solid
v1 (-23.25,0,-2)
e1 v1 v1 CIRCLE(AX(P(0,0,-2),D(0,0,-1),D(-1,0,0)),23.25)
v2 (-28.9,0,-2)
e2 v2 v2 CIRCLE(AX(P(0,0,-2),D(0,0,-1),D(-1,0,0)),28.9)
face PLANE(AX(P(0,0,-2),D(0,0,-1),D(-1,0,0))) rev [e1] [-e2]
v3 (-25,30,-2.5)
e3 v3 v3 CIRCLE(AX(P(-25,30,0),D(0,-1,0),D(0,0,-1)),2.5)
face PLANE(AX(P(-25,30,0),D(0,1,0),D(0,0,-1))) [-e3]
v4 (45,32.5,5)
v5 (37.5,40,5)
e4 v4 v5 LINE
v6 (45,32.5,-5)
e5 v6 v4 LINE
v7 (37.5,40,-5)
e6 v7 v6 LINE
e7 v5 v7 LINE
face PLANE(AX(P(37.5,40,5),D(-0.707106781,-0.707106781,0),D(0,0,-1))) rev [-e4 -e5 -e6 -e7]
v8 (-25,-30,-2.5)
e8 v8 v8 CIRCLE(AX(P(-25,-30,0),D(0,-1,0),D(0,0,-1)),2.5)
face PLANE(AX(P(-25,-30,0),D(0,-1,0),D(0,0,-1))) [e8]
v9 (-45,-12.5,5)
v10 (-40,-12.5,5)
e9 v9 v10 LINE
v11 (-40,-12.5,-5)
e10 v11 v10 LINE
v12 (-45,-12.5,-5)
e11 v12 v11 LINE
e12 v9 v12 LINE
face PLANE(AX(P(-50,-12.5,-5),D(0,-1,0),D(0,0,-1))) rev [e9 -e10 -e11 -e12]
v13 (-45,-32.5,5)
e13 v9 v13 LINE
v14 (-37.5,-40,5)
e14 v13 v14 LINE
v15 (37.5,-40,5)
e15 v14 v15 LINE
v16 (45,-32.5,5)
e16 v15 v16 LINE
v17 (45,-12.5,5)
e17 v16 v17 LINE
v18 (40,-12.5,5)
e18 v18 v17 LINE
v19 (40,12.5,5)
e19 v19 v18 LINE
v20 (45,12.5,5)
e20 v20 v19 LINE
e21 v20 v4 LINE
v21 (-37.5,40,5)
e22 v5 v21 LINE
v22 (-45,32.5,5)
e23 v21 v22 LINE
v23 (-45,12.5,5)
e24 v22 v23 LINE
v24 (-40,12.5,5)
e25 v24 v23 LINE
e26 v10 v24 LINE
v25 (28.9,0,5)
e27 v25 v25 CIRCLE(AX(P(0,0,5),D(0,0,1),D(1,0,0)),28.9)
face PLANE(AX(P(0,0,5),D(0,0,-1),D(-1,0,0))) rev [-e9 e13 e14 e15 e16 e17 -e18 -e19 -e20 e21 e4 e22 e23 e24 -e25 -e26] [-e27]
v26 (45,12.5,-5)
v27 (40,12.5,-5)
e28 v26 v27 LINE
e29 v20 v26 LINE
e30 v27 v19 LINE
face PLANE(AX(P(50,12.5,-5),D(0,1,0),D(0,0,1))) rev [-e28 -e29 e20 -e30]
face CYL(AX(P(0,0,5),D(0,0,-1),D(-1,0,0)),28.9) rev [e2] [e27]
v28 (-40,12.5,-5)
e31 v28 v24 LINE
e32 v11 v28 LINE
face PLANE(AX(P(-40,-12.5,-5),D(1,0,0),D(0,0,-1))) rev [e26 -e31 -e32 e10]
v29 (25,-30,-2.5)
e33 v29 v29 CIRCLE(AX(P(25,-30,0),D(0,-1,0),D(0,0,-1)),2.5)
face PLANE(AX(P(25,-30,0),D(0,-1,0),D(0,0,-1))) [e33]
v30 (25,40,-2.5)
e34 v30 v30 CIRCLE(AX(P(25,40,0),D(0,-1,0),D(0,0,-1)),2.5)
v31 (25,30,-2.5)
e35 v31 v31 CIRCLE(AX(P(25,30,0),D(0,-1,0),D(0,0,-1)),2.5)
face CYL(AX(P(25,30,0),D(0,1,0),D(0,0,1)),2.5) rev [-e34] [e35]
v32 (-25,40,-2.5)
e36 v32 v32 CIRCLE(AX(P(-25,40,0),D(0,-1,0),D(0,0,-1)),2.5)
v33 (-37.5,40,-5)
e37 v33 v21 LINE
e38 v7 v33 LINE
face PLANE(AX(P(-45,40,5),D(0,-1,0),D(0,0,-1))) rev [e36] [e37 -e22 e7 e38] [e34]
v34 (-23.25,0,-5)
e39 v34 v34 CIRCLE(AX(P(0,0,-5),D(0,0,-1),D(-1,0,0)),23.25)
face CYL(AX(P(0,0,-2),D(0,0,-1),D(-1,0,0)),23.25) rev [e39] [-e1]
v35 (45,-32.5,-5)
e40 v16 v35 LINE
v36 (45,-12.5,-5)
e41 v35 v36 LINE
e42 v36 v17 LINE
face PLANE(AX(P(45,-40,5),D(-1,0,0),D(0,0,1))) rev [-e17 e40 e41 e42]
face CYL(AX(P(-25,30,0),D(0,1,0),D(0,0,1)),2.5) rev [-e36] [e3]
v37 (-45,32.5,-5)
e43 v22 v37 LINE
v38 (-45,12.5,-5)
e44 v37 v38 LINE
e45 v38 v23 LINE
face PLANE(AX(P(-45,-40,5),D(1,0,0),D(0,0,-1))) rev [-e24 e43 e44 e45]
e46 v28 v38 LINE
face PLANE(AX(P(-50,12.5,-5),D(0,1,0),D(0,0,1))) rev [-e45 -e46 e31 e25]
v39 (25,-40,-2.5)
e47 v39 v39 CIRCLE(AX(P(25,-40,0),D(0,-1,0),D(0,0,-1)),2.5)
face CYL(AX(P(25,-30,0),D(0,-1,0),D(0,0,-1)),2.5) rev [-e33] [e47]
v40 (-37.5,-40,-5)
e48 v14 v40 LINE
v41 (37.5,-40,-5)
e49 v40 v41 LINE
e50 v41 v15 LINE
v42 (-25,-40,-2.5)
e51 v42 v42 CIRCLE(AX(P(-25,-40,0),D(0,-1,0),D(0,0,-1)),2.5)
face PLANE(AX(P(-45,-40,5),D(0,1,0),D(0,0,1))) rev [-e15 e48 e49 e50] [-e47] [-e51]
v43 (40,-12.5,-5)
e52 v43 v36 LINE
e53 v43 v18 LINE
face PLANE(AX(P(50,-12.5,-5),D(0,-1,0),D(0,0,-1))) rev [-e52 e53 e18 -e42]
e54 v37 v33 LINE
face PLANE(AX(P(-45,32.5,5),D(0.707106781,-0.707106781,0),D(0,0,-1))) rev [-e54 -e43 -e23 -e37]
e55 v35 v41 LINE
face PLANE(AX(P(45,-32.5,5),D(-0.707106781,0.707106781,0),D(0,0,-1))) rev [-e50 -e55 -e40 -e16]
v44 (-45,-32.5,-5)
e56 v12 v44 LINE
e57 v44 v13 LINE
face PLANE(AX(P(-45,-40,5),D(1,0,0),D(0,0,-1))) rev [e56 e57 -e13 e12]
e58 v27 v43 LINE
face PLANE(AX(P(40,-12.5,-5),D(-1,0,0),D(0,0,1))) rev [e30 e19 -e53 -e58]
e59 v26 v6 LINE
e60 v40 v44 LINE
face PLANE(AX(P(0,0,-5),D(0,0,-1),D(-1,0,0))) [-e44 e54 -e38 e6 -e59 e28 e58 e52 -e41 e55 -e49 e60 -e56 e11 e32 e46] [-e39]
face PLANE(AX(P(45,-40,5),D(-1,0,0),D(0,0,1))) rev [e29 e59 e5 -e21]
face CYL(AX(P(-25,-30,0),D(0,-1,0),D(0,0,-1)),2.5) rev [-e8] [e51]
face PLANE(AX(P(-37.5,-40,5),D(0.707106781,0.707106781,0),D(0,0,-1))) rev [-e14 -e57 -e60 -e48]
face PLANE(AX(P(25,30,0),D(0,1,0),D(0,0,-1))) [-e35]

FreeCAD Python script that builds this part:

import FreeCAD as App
import Part
import Sketcher
from FreeCAD import Vector


def edges_at(feature, points):
    """Names of the edges that pass closest to the given points."""
    edges = feature.Shape.Edges
    near = lambda p: min(range(len(edges)), key=lambda i: edges[i].distToShape(Part.Vertex(*p))[0])
    return sorted({f"Edge{near(p) + 1}" for p in points})

doc = App.newDocument("Part")
body = doc.addObject("PartDesign::Body", "Body")

# Sketch on XY plane
sketch1 = body.newObject("Sketcher::SketchObject", "Sketch")
sketch1.AttachmentSupport = (doc.getObject("XY_Plane"), [""])
sketch1.MapMode = "FlatFace"
sketch1.addGeometry(Part.LineSegment(Vector(-45, 40, 0), Vector(-45, -40, 0)), False)
sketch1.addGeometry(Part.LineSegment(Vector(-45, -40, 0), Vector(45, -40, 0)), False)
sketch1.addGeometry(Part.LineSegment(Vector(45, -40, 0), Vector(45, 40, 0)), False)
sketch1.addGeometry(Part.LineSegment(Vector(45, 40, 0), Vector(-45, 40, 0)), False)
sketch1.addGeometry(Part.Circle(Vector(0, 0, 0), Vector(0, 0, 1), 29), False)
sketch1.addConstraint(Sketcher.Constraint("Coincident", 0, 2, 1, 1))
sketch1.addConstraint(Sketcher.Constraint("Coincident", 1, 2, 2, 1))
sketch1.addConstraint(Sketcher.Constraint("Coincident", 2, 2, 3, 1))
sketch1.addConstraint(Sketcher.Constraint("Coincident", 3, 2, 0, 1))
sketch1.addConstraint(Sketcher.Constraint("Vertical", 0))
sketch1.addConstraint(Sketcher.Constraint("Horizontal", 1))
sketch1.addConstraint(Sketcher.Constraint("Vertical", 2))
sketch1.addConstraint(Sketcher.Constraint("Horizontal", 3))
sketch1.addConstraint(Sketcher.Constraint("Coincident", 4, 3, -1, 1))
sketch1.addConstraint(Sketcher.Constraint("Symmetric", 0, 2, 2, 2, -1, 1))
sketch1.addConstraint(Sketcher.Constraint("Diameter", 4, 57.8))
sketch1.addConstraint(Sketcher.Constraint("DistanceX", 1, 1, 1, 2, 90.0))
sketch1.addConstraint(Sketcher.Constraint("DistanceY", 0, 2, 0, 1, 80.0))
pad1 = body.newObject("PartDesign::Pad", "Pad")
pad1.Profile = sketch1
pad1.Length = 10
pad1.Midplane = True

# Sketch on XY plane
sketch2 = body.newObject("Sketcher::SketchObject", "Sketch001")
sketch2.AttachmentSupport = (doc.getObject("XY_Plane"), [""])
sketch2.MapMode = "FlatFace"
sketch2.AttachmentOffset = App.Placement(Vector(0, 0, -5), App.Rotation())
sketch2.addGeometry(Part.Circle(Vector(0, 0, 0), Vector(0, 0, 1), 29), False)
sketch2.addGeometry(Part.Circle(Vector(0, 0, 0), Vector(0, 0, 1), 23), False)
sketch2.addConstraint(Sketcher.Constraint("Coincident", 0, 3, -1, 1))
sketch2.addConstraint(Sketcher.Constraint("Coincident", 1, 3, -1, 1))
sketch2.addConstraint(Sketcher.Constraint("Diameter", 0, 57.8))
sketch2.addConstraint(Sketcher.Constraint("Diameter", 1, 46.5))
pad2 = body.newObject("PartDesign::Pad", "Pad001")
pad2.Profile = sketch2
pad2.Length = 3

# Sketch on XY plane
sketch3 = body.newObject("Sketcher::SketchObject", "Sketch002")
sketch3.AttachmentSupport = (doc.getObject("XY_Plane"), [""])
sketch3.MapMode = "FlatFace"
sketch3.AttachmentOffset = App.Placement(Vector(0, 0, 5), App.Rotation())
sketch3.addGeometry(Part.LineSegment(Vector(-50, 12, 0), Vector(-50, -12, 0)), False)
sketch3.addGeometry(Part.LineSegment(Vector(-50, -12, 0), Vector(-40, -12, 0)), False)
sketch3.addGeometry(Part.LineSegment(Vector(-40, -12, 0), Vector(-40, 12, 0)), False)
sketch3.addGeometry(Part.LineSegment(Vector(-40, 12, 0), Vector(-50, 12, 0)), False)
sketch3.addGeometry(Part.LineSegment(Vector(40, 12, 0), Vector(40, -12, 0)), False)
sketch3.addGeometry(Part.LineSegment(Vector(40, -12, 0), Vector(50, -12, 0)), False)
sketch3.addGeometry(Part.LineSegment(Vector(50, -12, 0), Vector(50, 12, 0)), False)
sketch3.addGeometry(Part.LineSegment(Vector(50, 12, 0), Vector(40, 12, 0)), False)
sketch3.addConstraint(Sketcher.Constraint("Coincident", 0, 2, 1, 1))
sketch3.addConstraint(Sketcher.Constraint("Coincident", 1, 2, 2, 1))
sketch3.addConstraint(Sketcher.Constraint("Coincident", 2, 2, 3, 1))
sketch3.addConstraint(Sketcher.Constraint("Coincident", 3, 2, 0, 1))
sketch3.addConstraint(Sketcher.Constraint("Coincident", 4, 2, 5, 1))
sketch3.addConstraint(Sketcher.Constraint("Coincident", 5, 2, 6, 1))
sketch3.addConstraint(Sketcher.Constraint("Coincident", 6, 2, 7, 1))
sketch3.addConstraint(Sketcher.Constraint("Coincident", 7, 2, 4, 1))
sketch3.addConstraint(Sketcher.Constraint("Vertical", 0))
sketch3.addConstraint(Sketcher.Constraint("Horizontal", 1))
sketch3.addConstraint(Sketcher.Constraint("Vertical", 2))
sketch3.addConstraint(Sketcher.Constraint("Horizontal", 3))
sketch3.addConstraint(Sketcher.Constraint("Vertical", 4))
sketch3.addConstraint(Sketcher.Constraint("Horizontal", 5))
sketch3.addConstraint(Sketcher.Constraint("Vertical", 6))
sketch3.addConstraint(Sketcher.Constraint("Horizontal", 7))
sketch3.addConstraint(Sketcher.Constraint("Symmetric", 2, 2, 4, 2, -1, 1))
sketch3.addConstraint(Sketcher.Constraint("Symmetric", 0, 2, 6, 2, -1, 1))
sketch3.addConstraint(Sketcher.Constraint("Horizontal", 1, 2, 4, 2))
sketch3.addConstraint(Sketcher.Constraint("DistanceX", 1, 1, 1, 2, 10.0))
sketch3.addConstraint(Sketcher.Constraint("DistanceY", 0, 2, 0, 1, 25.0))
sketch3.addConstraint(Sketcher.Constraint("DistanceX", 0, 2, -1, 1, 50.0))
pocket1 = body.newObject("PartDesign::Pocket", "Pocket")
pocket1.Profile = sketch3
pocket1.Type = "ThroughAll"
doc.recompute()

chamfer = body.newObject("PartDesign::Chamfer", "Chamfer")
chamfer.Base = (pocket1, edges_at(pocket1, [
    (45, -40, 0),
    (-45, -40, 0),
    (-45, 40, 0),
    (45, 40, 0),
]))
chamfer.Size = 7.5

# Sketch on XZ plane
sketch4 = body.newObject("Sketcher::SketchObject", "Sketch003")
sketch4.AttachmentSupport = (doc.getObject("XZ_Plane"), [""])
sketch4.MapMode = "FlatFace"
sketch4.AttachmentOffset = App.Placement(Vector(0, 0, 40), App.Rotation())
sketch4.addGeometry(Part.Circle(Vector(-25, 0, 0), Vector(0, 0, 1), 2.5), False)
sketch4.addGeometry(Part.Circle(Vector(25, 0, 0), Vector(0, 0, 1), 2.5), False)
sketch4.addConstraint(Sketcher.Constraint("Equal", 0, 1))
sketch4.addConstraint(Sketcher.Constraint("Symmetric", 0, 3, 1, 3, -1, 1))
sketch4.addConstraint(Sketcher.Constraint("PointOnObject", 0, 3, -1))
sketch4.addConstraint(Sketcher.Constraint("Diameter", 0, 5.0))
sketch4.addConstraint(Sketcher.Constraint("DistanceX", 0, 3, -1, 1, 25.0))
pocket2 = body.newObject("PartDesign::Pocket", "Pocket001")
pocket2.Profile = sketch4
pocket2.Length = 10
doc.recompute()

mirrored = body.newObject("PartDesign::Mirrored", "Mirrored")
mirrored.Originals = [pocket2]
mirrored.MirrorPlane = (doc.getObject("XZ_Plane"), [""])
body.Tip = mirrored

doc.recompute()
